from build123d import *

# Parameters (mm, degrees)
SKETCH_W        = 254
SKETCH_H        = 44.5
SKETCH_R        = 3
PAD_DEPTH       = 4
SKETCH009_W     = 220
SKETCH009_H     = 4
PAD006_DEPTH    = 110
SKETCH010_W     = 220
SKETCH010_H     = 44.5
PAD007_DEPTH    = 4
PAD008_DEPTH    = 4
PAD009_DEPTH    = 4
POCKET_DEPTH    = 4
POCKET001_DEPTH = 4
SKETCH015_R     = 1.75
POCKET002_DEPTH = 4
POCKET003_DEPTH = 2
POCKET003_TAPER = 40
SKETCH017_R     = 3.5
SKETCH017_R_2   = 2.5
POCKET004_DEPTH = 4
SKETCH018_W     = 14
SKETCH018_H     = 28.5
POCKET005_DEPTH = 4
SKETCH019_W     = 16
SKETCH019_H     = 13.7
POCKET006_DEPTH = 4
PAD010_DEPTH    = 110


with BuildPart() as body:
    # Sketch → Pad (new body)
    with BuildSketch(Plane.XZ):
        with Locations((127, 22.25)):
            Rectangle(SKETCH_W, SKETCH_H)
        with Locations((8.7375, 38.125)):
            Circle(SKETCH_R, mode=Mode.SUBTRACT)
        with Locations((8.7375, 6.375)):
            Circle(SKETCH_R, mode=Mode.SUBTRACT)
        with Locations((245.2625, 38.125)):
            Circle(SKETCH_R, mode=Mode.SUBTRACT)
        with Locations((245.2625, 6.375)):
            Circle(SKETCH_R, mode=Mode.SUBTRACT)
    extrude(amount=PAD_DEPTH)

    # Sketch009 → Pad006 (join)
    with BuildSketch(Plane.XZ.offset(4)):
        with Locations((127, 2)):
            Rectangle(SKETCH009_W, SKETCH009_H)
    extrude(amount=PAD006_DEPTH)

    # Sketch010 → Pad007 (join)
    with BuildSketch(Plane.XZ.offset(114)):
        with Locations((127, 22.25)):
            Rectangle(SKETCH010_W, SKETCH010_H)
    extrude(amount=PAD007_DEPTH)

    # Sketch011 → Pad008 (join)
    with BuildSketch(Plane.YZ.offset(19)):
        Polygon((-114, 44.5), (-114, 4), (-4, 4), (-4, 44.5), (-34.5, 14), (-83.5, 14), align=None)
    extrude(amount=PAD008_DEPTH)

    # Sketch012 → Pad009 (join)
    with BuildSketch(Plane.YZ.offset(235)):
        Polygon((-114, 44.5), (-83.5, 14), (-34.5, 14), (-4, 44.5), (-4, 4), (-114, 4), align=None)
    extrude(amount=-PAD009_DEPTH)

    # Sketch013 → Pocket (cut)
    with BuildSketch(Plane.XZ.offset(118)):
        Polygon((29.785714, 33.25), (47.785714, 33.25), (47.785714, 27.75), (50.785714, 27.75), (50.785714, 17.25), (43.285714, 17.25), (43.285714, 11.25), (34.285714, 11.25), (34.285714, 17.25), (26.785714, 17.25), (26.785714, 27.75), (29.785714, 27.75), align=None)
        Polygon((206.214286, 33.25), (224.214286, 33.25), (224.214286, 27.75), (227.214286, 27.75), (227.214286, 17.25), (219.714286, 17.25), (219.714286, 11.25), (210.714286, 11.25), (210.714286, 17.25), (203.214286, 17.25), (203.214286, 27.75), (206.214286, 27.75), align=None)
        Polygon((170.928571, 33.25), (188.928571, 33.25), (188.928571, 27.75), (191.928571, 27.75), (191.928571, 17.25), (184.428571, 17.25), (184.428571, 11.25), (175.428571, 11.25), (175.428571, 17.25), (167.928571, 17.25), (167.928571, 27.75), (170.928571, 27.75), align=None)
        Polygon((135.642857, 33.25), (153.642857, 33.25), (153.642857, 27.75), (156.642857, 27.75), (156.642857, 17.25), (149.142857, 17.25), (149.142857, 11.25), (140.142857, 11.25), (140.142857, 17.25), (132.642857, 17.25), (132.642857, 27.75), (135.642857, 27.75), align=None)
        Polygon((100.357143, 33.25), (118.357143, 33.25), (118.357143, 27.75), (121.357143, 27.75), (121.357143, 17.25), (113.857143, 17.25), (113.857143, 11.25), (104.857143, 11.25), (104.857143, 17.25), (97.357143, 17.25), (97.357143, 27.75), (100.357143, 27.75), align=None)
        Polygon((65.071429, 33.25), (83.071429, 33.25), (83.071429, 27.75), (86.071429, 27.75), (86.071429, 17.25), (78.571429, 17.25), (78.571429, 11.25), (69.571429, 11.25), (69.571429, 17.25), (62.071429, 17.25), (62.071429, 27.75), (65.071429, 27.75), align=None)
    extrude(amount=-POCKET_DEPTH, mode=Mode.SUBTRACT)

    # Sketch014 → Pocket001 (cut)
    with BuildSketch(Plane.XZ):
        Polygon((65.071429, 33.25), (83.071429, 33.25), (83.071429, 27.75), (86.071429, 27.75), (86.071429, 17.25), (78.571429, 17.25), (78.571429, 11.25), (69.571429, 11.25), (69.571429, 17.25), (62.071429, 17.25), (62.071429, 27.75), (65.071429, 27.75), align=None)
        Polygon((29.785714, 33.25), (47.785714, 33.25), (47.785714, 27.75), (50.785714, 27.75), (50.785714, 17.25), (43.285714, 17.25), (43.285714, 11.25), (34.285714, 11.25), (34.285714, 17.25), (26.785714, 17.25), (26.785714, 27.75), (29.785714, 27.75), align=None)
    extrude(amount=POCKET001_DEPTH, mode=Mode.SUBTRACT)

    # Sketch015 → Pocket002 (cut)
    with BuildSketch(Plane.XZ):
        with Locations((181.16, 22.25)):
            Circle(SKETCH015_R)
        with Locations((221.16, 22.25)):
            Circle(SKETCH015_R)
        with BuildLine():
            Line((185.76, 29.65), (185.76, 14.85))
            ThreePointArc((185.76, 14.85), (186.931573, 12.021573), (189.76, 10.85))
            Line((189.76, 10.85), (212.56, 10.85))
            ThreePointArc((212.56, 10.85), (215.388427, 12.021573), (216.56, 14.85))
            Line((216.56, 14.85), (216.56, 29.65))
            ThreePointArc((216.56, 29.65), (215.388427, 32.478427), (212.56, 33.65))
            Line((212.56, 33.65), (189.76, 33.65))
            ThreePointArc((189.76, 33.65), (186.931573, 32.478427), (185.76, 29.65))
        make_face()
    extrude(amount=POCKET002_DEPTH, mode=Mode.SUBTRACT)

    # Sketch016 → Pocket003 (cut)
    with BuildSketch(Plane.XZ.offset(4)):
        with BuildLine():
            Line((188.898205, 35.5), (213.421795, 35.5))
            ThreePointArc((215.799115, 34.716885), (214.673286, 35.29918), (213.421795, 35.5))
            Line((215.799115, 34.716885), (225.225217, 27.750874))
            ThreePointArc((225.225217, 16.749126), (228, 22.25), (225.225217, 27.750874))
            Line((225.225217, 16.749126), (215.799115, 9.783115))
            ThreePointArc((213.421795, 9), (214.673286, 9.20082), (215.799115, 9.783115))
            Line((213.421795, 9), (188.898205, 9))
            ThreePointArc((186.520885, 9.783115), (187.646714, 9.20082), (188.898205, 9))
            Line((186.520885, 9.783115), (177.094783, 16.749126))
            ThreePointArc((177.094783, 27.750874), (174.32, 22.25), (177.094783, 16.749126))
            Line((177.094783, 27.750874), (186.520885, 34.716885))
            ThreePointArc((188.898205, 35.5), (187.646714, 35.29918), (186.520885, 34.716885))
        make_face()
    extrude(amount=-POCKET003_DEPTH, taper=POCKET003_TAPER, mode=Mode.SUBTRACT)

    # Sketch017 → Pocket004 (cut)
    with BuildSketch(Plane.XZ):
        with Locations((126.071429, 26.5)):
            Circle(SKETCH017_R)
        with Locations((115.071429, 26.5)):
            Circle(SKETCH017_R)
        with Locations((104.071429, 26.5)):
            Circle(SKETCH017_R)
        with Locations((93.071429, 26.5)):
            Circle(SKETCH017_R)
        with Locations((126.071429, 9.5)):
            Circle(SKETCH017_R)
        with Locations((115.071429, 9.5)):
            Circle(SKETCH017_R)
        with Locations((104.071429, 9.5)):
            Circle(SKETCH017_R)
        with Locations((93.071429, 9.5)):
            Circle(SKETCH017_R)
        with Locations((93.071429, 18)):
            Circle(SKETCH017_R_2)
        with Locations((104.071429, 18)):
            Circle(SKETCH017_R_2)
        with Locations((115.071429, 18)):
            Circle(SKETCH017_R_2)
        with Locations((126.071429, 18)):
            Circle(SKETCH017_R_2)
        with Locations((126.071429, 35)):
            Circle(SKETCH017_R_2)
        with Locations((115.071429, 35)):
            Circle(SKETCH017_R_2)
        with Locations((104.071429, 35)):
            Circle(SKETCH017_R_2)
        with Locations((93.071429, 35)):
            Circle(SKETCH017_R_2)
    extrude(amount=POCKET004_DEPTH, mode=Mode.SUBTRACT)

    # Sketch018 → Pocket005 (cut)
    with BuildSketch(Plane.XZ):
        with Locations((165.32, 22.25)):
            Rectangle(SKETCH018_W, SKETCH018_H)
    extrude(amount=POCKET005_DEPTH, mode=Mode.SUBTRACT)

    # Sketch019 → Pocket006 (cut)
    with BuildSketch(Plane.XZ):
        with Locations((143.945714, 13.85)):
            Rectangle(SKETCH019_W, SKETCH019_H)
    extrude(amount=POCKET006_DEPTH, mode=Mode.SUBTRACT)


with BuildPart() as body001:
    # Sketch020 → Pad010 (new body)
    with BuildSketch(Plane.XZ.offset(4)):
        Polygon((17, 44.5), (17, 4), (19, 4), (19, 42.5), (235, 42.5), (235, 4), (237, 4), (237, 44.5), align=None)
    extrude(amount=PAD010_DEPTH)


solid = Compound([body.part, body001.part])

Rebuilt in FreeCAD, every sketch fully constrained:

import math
import FreeCAD as App
import Part
import Sketcher

V = App.Vector


def add_polygon(sketch, points):
    """Adds a closed chain of lines whose ends are joined by coincident constraints."""
    first, n = sketch.GeometryCount, len(points)
    for a, b in zip(points, points[1:] + points[:1]):
        sketch.addGeometry(Part.LineSegment(App.Vector(*a, 0), App.Vector(*b, 0)), False)
    for i in range(n):
        sketch.addConstraint(Sketcher.Constraint("Coincident", first + i, 2, first + (i + 1) % n, 1))

doc = App.newDocument("Part")
params = doc.addObject("Spreadsheet::Sheet", "Params")
for row, (alias, value) in enumerate([
    ("sketch1_diameter", "6 mm"),
    ("sketch1_width", "254 mm"),
    ("sketch1_height", "44.5 mm"),
    ("pad1_length", "4 mm"),
    ("sketch2_width", "220 mm"),
    ("sketch2_height", "4 mm"),
    ("pad2_length", "110 mm"),
    ("sketch3_width", "220 mm"),
    ("sketch3_height", "44.5 mm"),
    ("pad3_length", "4 mm"),
    ("sketch4_width", "110 mm"),
    ("sketch4_width2", "49 mm"),
    ("sketch4_height", "40.5 mm"),
    ("pad4_length", "4 mm"),
    ("sketch5_width", "110 mm"),
    ("sketch5_width2", "49 mm"),
    ("sketch5_height", "40.5 mm"),
    ("pad5_length", "4 mm"),
    ("sketch6_width", "18 mm"),
    ("sketch6_width2", "3 mm"),
    ("sketch6_width3", "9 mm"),
    ("sketch6_height", "6 mm"),
    ("sketch6_height2", "5.5 mm"),
    ("pocket1_length", "4 mm"),
    ("sketch7_width", "18 mm"),
    ("sketch7_width2", "3 mm"),
    ("sketch7_width3", "9 mm"),
    ("sketch7_height", "6 mm"),
    ("sketch7_height2", "5.5 mm"),
    ("pocket2_length", "4 mm"),
    ("sketch8_radius", "4 mm"),
    ("sketch8_diameter", "3.5 mm"),
    ("sketch8_width", "22.8 mm"),
    ("sketch8_height", "14.8 mm"),
    ("pocket3_length", "4 mm"),
    ("sketch9_radius", "6.840001 mm"),
    ("pocket4_length", "2 mm"),
    ("pocket4_taper", "-40 deg"),
    ("sketch10_diameter", "7 mm"),
    ("sketch10_diameter2", "5 mm"),
    ("pocket5_length", "4 mm"),
    ("sketch11_width", "14 mm"),
    ("sketch11_height", "28.5 mm"),
    ("pocket6_length", "4 mm"),
    ("sketch12_width", "16 mm"),
    ("sketch12_height", "13.7 mm"),
    ("pocket7_length", "4 mm"),
    ("sketch13_width", "2 mm"),
    ("sketch13_width2", "216 mm"),
    ("sketch13_height", "40.5 mm"),
    ("sketch13_height2", "38.5 mm"),
    ("pad6_length", "110 mm"),
], start=1):
    params.set(f"A{row}", alias)
    params.set(f"B{row}", "=" + value)
    params.setAlias(f"B{row}", alias)

body = doc.addObject("PartDesign::Body", "Body")

# Sketch on XZ plane
sketch1 = body.newObject("Sketcher::SketchObject", "Sketch")
sketch1.AttachmentSupport = (doc.getObject("XZ_Plane"), [""])
sketch1.MapMode = "FlatFace"
add_polygon(sketch1, [(0, 44.5), (0, 0), (254, 0), (254, 44.5)])  # lines 0-3
sketch1.addGeometry(Part.Circle(V(8.7, 6.4, 0), V(0, 0, 1), 3), False)  # 4
sketch1.addGeometry(Part.Circle(V(245.3, 6.4, 0), V(0, 0, 1), 3), False)  # 5
sketch1.addGeometry(Part.Circle(V(8.7, 38.1, 0), V(0, 0, 1), 3), False)  # 6
sketch1.addGeometry(Part.Circle(V(245.3, 38.1, 0), V(0, 0, 1), 3), False)  # 7
sketch1.addConstraint([
    Sketcher.Constraint("Vertical", 0),
    Sketcher.Constraint("Horizontal", 1),
    Sketcher.Constraint("Vertical", 2),
    Sketcher.Constraint("Horizontal", 3),
    Sketcher.Constraint("Coincident", 0, 2, -1, 1),
    Sketcher.Constraint("Equal", 4, 5),
    Sketcher.Constraint("Equal", 5, 6),
    Sketcher.Constraint("Equal", 6, 7),
    Sketcher.Constraint("Horizontal", 4, 3, 5, 3),
    Sketcher.Constraint("Horizontal", 6, 3, 7, 3),
    Sketcher.Constraint("Vertical", 4, 3, 6, 3),
    Sketcher.Constraint("Vertical", 5, 3, 7, 3),
    Sketcher.Constraint("Diameter", 4, 6.0),
    Sketcher.Constraint("DistanceX", 1, 1, 1, 2, 254.0),
    Sketcher.Constraint("DistanceY", 0, 2, 0, 1, 44.5),
    Sketcher.Constraint("DistanceY", 4, 3, 6, 3, 31.75),
    Sketcher.Constraint("DistanceY", -1, 1, 4, 3, 6.375),
    Sketcher.Constraint("DistanceX", 4, 3, 5, 3, 236.525),
    Sketcher.Constraint("DistanceX", -1, 1, 4, 3, 8.7375),
])
sketch1.setExpression("Constraints[16]", "Params.sketch1_diameter")
sketch1.setExpression("Constraints[17]", "Params.sketch1_width")
sketch1.setExpression("Constraints[18]", "Params.sketch1_height")
pad1 = body.newObject("PartDesign::Pad", "Pad")
pad1.Profile = sketch1
pad1.setExpression("Length", "Params.pad1_length")

# Sketch on XZ plane
sketch2 = body.newObject("Sketcher::SketchObject", "Sketch001")
sketch2.AttachmentSupport = (doc.getObject("XZ_Plane"), [""])
sketch2.MapMode = "FlatFace"
sketch2.AttachmentOffset = App.Placement(V(0, 0, 4), App.Rotation())
add_polygon(sketch2, [(17, 4), (17, 0), (237, 0), (237, 4)])  # lines 0-3
sketch2.addConstraint([
    Sketcher.Constraint("Vertical", 0),
    Sketcher.Constraint("Horizontal", 1),
    Sketcher.Constraint("Vertical", 2),
    Sketcher.Constraint("Horizontal", 3),
    Sketcher.Constraint("PointOnObject", 0, 2, -1),
    Sketcher.Constraint("DistanceX", 1, 1, 1, 2, 220.0),
    Sketcher.Constraint("DistanceY", 0, 2, 0, 1, 4.0),
    Sketcher.Constraint("DistanceX", -1, 1, 0, 2, 17.0),
])
sketch2.setExpression("Constraints[9]", "Params.sketch2_width")
sketch2.setExpression("Constraints[10]", "Params.sketch2_height")
pad2 = body.newObject("PartDesign::Pad", "Pad001")
pad2.Profile = sketch2
pad2.setExpression("Length", "Params.pad2_length")

# Sketch on XZ plane
sketch3 = body.newObject("Sketcher::SketchObject", "Sketch002")
sketch3.AttachmentSupport = (doc.getObject("XZ_Plane"), [""])
sketch3.MapMode = "FlatFace"
sketch3.AttachmentOffset = App.Placement(V(0, 0, 114), App.Rotation())
add_polygon(sketch3, [(17, 44), (17, 0), (237, 0), (237, 44)])  # lines 0-3
sketch3.addConstraint([
    Sketcher.Constraint("Vertical", 0),
    Sketcher.Constraint("Horizontal", 1),
    Sketcher.Constraint("Vertical", 2),
    Sketcher.Constraint("Horizontal", 3),
    Sketcher.Constraint("PointOnObject", 0, 2, -1),
    Sketcher.Constraint("DistanceX", 1, 1, 1, 2, 220.0),
    Sketcher.Constraint("DistanceY", 0, 2, 0, 1, 44.5),
    Sketcher.Constraint("DistanceX", -1, 1, 0, 2, 17.0),
])
sketch3.setExpression("Constraints[9]", "Params.sketch3_width")
sketch3.setExpression("Constraints[10]", "Params.sketch3_height")
pad3 = body.newObject("PartDesign::Pad", "Pad002")
pad3.Profile = sketch3
pad3.setExpression("Length", "Params.pad3_length")

# Sketch on YZ plane
sketch4 = body.newObject("Sketcher::SketchObject", "Sketch003")
sketch4.AttachmentSupport = (doc.getObject("YZ_Plane"), [""])
sketch4.MapMode = "FlatFace"
sketch4.AttachmentOffset = App.Placement(V(0, 0, 19), App.Rotation())
add_polygon(sketch4, [(-114, 44), (-114, 4), (-4, 4), (-4, 44), (-34, 14), (-84, 14)])  # lines 0-5
sketch4.addConstraint([
    Sketcher.Constraint("Vertical", 0),
    Sketcher.Constraint("Horizontal", 1),
    Sketcher.Constraint("Vertical", 2),
    Sketcher.Constraint("Horizontal", 4),
    Sketcher.Constraint("Perpendicular", 3, 5),
    Sketcher.Constraint("Horizontal", 2, 2, 5, 2),
    Sketcher.Constraint("Equal", 3, 5),
    Sketcher.Constraint("DistanceX", 1, 1, 1, 2, 110.0),
    Sketcher.Constraint("DistanceX", 4, 2, 4, 1, 49.0),
    Sketcher.Constraint("DistanceY", 0, 2, 0, 1, 40.5),
    Sketcher.Constraint("DistanceX", 0, 2, -1, 1, 114.0),
    Sketcher.Constraint("DistanceY", -1, 1, 0, 2, 4.0),
])
sketch4.setExpression("Constraints[13]", "Params.sketch4_width")
sketch4.setExpression("Constraints[14]", "Params.sketch4_width2")
sketch4.setExpression("Constraints[15]", "Params.sketch4_height")
pad4 = body.newObject("PartDesign::Pad", "Pad003")
pad4.Profile = sketch4
pad4.setExpression("Length", "Params.pad4_length")

# Sketch on YZ plane
sketch5 = body.newObject("Sketcher::SketchObject", "Sketch004")
sketch5.AttachmentSupport = (doc.getObject("YZ_Plane"), [""])
sketch5.MapMode = "FlatFace"
sketch5.AttachmentOffset = App.Placement(V(0, 0, 235), App.Rotation())
add_polygon(sketch5, [(-84, 14), (-114, 44), (-114, 4), (-4, 4), (-4, 44), (-34, 14)])  # lines 0-5
sketch5.addConstraint([
    Sketcher.Constraint("Vertical", 1),
    Sketcher.Constraint("Horizontal", 2),
    Sketcher.Constraint("Vertical", 3),
    Sketcher.Constraint("Horizontal", 5),
    Sketcher.Constraint("Perpendicular", 0, 4),
    Sketcher.Constraint("Horizontal", 0, 2, 3, 2),
    Sketcher.Constraint("Equal", 0, 4),
    Sketcher.Constraint("DistanceX", 2, 1, 2, 2, 110.0),
    Sketcher.Constraint("DistanceX", 5, 2, 5, 1, 49.0),
    Sketcher.Constraint("DistanceY", 1, 2, 1, 1, 40.5),
    Sketcher.Constraint("DistanceX", 0, 2, -1, 1, 114.0),
    Sketcher.Constraint("DistanceY", -1, 1, 1, 2, 4.0),
])
sketch5.setExpression("Constraints[13]", "Params.sketch5_width")
sketch5.setExpression("Constraints[14]", "Params.sketch5_width2")
sketch5.setExpression("Constraints[15]", "Params.sketch5_height")
pad5 = body.newObject("PartDesign::Pad", "Pad004")
pad5.Profile = sketch5
pad5.setExpression("Length", "Params.pad5_length")
pad5.Reversed = True

# Sketch on XZ plane
sketch6 = body.newObject("Sketcher::SketchObject", "Sketch005")
sketch6.AttachmentSupport = (doc.getObject("XZ_Plane"), [""])
sketch6.MapMode = "FlatFace"
sketch6.AttachmentOffset = App.Placement(V(0, 0, 118), App.Rotation())
add_polygon(sketch6, [(47.8, 33.2), (29.8, 33.2), (29.8, 27.8), (26.8, 27.8), (26.8, 17.2), (34.3, 17.2), (34.3, 11.2), (43.3, 11.2), (43.3, 17.2), (50.8, 17.2), (50.8, 27.8), (47.8, 27.8)])  # lines 0-11
add_polygon(sketch6, [(224.2, 33.2), (206.2, 33.2), (206.2, 27.8), (203.2, 27.8), (203.2, 17.2), (210.7, 17.2), (210.7, 11.2), (219.7, 11.2), (219.7, 17.2), (227.2, 17.2), (227.2, 27.8), (224.2, 27.8)])  # lines 12-23
add_polygon(sketch6, [(188.9, 33.2), (170.9, 33.2), (170.9, 27.8), (167.9, 27.8), (167.9, 17.2), (175.4, 17.2), (175.4, 11.2), (184.4, 11.2), (184.4, 17.2), (191.9, 17.2), (191.9, 27.8), (188.9, 27.8)])  # lines 24-35
add_polygon(sketch6, [(153.6, 33.2), (135.6, 33.2), (135.6, 27.8), (132.6, 27.8), (132.6, 17.2), (140.1, 17.2), (140.1, 11.2), (149.1, 11.2), (149.1, 17.2), (156.6, 17.2), (156.6, 27.8), (153.6, 27.8)])  # lines 36-47
add_polygon(sketch6, [(118.4, 33.2), (100.4, 33.2), (100.4, 27.8), (97.4, 27.8), (97.4, 17.2), (104.9, 17.2), (104.9, 11.2), (113.9, 11.2), (113.9, 17.2), (121.4, 17.2), (121.4, 27.8), (118.4, 27.8)])  # lines 48-59
add_polygon(sketch6, [(83.1, 33.2), (65.1, 33.2), (65.1, 27.8), (62.1, 27.8), (62.1, 17.2), (69.6, 17.2), (69.6, 11.2), (78.6, 11.2), (78.6, 17.2), (86.1, 17.2), (86.1, 27.8), (83.1, 27.8)])  # lines 60-71
sketch6.addConstraint([
    Sketcher.Constraint("Horizontal", 0),
    Sketcher.Constraint("Vertical", 1),
    Sketcher.Constraint("Horizontal", 2),
    Sketcher.Constraint("Vertical", 3),
    Sketcher.Constraint("Horizontal", 4),
    Sketcher.Constraint("Vertical", 5),
    Sketcher.Constraint("Horizontal", 6),
    Sketcher.Constraint("Vertical", 7),
    Sketcher.Constraint("Horizontal", 8),
    Sketcher.Constraint("Vertical", 9),
    Sketcher.Constraint("Horizontal", 10),
    Sketcher.Constraint("Vertical", 11),
    Sketcher.Constraint("Horizontal", 12),
    Sketcher.Constraint("Vertical", 13),
    Sketcher.Constraint("Horizontal", 14),
    Sketcher.Constraint("Vertical", 15),
    Sketcher.Constraint("Horizontal", 16),
    Sketcher.Constraint("Vertical", 17),
    Sketcher.Constraint("Horizontal", 18),
    Sketcher.Constraint("Vertical", 19),
    Sketcher.Constraint("Horizontal", 20),
    Sketcher.Constraint("Vertical", 21),
    Sketcher.Constraint("Horizontal", 22),
    Sketcher.Constraint("Vertical", 23),
    Sketcher.Constraint("Horizontal", 24),
    Sketcher.Constraint("Vertical", 25),
    Sketcher.Constraint("Horizontal", 26),
    Sketcher.Constraint("Vertical", 27),
    Sketcher.Constraint("Horizontal", 28),
    Sketcher.Constraint("Vertical", 29),
    Sketcher.Constraint("Horizontal", 30),
    Sketcher.Constraint("Vertical", 31),
    Sketcher.Constraint("Horizontal", 32),
    Sketcher.Constraint("Vertical", 33),
    Sketcher.Constraint("Horizontal", 34),
    Sketcher.Constraint("Vertical", 35),
    Sketcher.Constraint("Horizontal", 36),
    Sketcher.Constraint("Vertical", 37),
    Sketcher.Constraint("Horizontal", 38),
    Sketcher.Constraint("Vertical", 39),
    Sketcher.Constraint("Horizontal", 40),
    Sketcher.Constraint("Vertical", 41),
    Sketcher.Constraint("Horizontal", 42),
    Sketcher.Constraint("Vertical", 43),
    Sketcher.Constraint("Horizontal", 44),
    Sketcher.Constraint("Vertical", 45),
    Sketcher.Constraint("Horizontal", 46),
    Sketcher.Constraint("Vertical", 47),
    Sketcher.Constraint("Horizontal", 48),
    Sketcher.Constraint("Vertical", 49),
    Sketcher.Constraint("Horizontal", 50),
    Sketcher.Constraint("Vertical", 51),
    Sketcher.Constraint("Horizontal", 52),
    Sketcher.Constraint("Vertical", 53),
    Sketcher.Constraint("Horizontal", 54),
    Sketcher.Constraint("Vertical", 55),
    Sketcher.Constraint("Horizontal", 56),
    Sketcher.Constraint("Vertical", 57),
    Sketcher.Constraint("Horizontal", 58),
    Sketcher.Constraint("Vertical", 59),
    Sketcher.Constraint("Horizontal", 60),
    Sketcher.Constraint("Vertical", 61),
    Sketcher.Constraint("Horizontal", 62),
    Sketcher.Constraint("Vertical", 63),
    Sketcher.Constraint("Horizontal", 64),
    Sketcher.Constraint("Vertical", 65),
    Sketcher.Constraint("Horizontal", 66),
    Sketcher.Constraint("Vertical", 67),
    Sketcher.Constraint("Horizontal", 68),
    Sketcher.Constraint("Vertical", 69),
    Sketcher.Constraint("Horizontal", 70),
    Sketcher.Constraint("Vertical", 71),
    Sketcher.Constraint("Horizontal", 4, 2, 7, 2),
    Sketcher.Constraint("Horizontal", 2, 2, 9, 2),
    Sketcher.Constraint("Horizontal", 11, 2, 12, 2),
    Sketcher.Constraint("Horizontal", 10, 2, 13, 2),
    Sketcher.Constraint("Horizontal", 8, 2, 15, 2),
    Sketcher.Constraint("Horizontal", 6, 2, 17, 2),
    Sketcher.Constraint("Horizontal", 16, 2, 19, 2),
    Sketcher.Constraint("Horizontal", 14, 2, 21, 2),
    Sketcher.Constraint("Horizontal", 23, 2, 24, 2),
    Sketcher.Constraint("Horizontal", 22, 2, 25, 2),
    Sketcher.Constraint("Horizontal", 20, 2, 27, 2),
    Sketcher.Constraint("Horizontal", 18, 2, 29, 2),
    Sketcher.Constraint("Horizontal", 28, 2, 31, 2),
    Sketcher.Constraint("Horizontal", 26, 2, 33, 2),
    Sketcher.Constraint("Horizontal", 35, 2, 36, 2),
    Sketcher.Constraint("Horizontal", 34, 2, 37, 2),
    Sketcher.Constraint("Horizontal", 32, 2, 39, 2),
    Sketcher.Constraint("Horizontal", 30, 2, 41, 2),
    Sketcher.Constraint("Horizontal", 40, 2, 43, 2),
    Sketcher.Constraint("Horizontal", 38, 2, 45, 2),
    Sketcher.Constraint("Horizontal", 47, 2, 48, 2),
    Sketcher.Constraint("Horizontal", 46, 2, 49, 2),
    Sketcher.Constraint("Horizontal", 44, 2, 51, 2),
    Sketcher.Constraint("Horizontal", 42, 2, 53, 2),
    Sketcher.Constraint("Horizontal", 52, 2, 55, 2),
    Sketcher.Constraint("Horizontal", 50, 2, 57, 2),
    Sketcher.Constraint("Horizontal", 59, 2, 60, 2),
    Sketcher.Constraint("Horizontal", 58, 2, 61, 2),
    Sketcher.Constraint("Horizontal", 56, 2, 63, 2),
    Sketcher.Constraint("Horizontal", 54, 2, 65, 2),
    Sketcher.Constraint("Horizontal", 64, 2, 67, 2),
    Sketcher.Constraint("Horizontal", 62, 2, 69, 2),
    Sketcher.Constraint("Equal", 4, 8),
    Sketcher.Constraint("Equal", 2, 10),
    Sketcher.Constraint("Equal", 0, 12),
    Sketcher.Constraint("Equal", 10, 14),
    Sketcher.Constraint("Equal", 8, 16),
    Sketcher.Constraint("Equal", 6, 18),
    Sketcher.Constraint("Equal", 16, 20),
    Sketcher.Constraint("Equal", 12, 24),
    Sketcher.Constraint("Equal", 22, 26),
    Sketcher.Constraint("Equal", 20, 28),
    Sketcher.Constraint("Equal", 18, 30),
    Sketcher.Constraint("Equal", 28, 32),
    Sketcher.Constraint("Equal", 24, 36),
    Sketcher.Constraint("Equal", 34, 38),
    Sketcher.Constraint("Equal", 32, 40),
    Sketcher.Constraint("Equal", 30, 42),
    Sketcher.Constraint("Equal", 40, 44),
    Sketcher.Constraint("Equal", 36, 48),
    Sketcher.Constraint("Equal", 46, 50),
    Sketcher.Constraint("Equal", 44, 52),
    Sketcher.Constraint("Equal", 42, 54),
    Sketcher.Constraint("Equal", 52, 56),
    Sketcher.Constraint("Equal", 48, 60),
    Sketcher.Constraint("Equal", 58, 62),
    Sketcher.Constraint("Equal", 56, 64),
    Sketcher.Constraint("Equal", 54, 66),
    Sketcher.Constraint("Equal", 64, 68),
    Sketcher.Constraint("DistanceX", 0, 2, 0, 1, 18.0),
    Sketcher.Constraint("DistanceX", 2, 2, 2, 1, 3.0),
    Sketcher.Constraint("DistanceX", 6, 1, 6, 2, 9.0),
    Sketcher.Constraint("DistanceY", 5, 2, 5, 1, 6.0),
    Sketcher.Constraint("DistanceY", 1, 2, 1, 1, 5.5),
    Sketcher.Constraint("DistanceY", 3, 2, 3, 1, 10.5),
    Sketcher.Constraint("DistanceY", -1, 1, 0, 2, 33.25),
    Sketcher.Constraint("DistanceX", -1, 1, 24, 2, 170.928571),
    Sketcher.Constraint("DistanceX", -1, 1, 60, 2, 65.071429),
    Sketcher.Constraint("DistanceX", -1, 1, 0, 2, 29.785714),
    Sketcher.Constraint("DistanceX", -1, 1, 12, 2, 206.214286),
    Sketcher.Constraint("DistanceX", -1, 1, 36, 2, 135.642857),
    Sketcher.Constraint("DistanceX", -1, 1, 48, 2, 100.357143),
])
sketch6.setExpression("Constraints[203]", "Params.sketch6_width")
sketch6.setExpression("Constraints[204]", "Params.sketch6_width2")
sketch6.setExpression("Constraints[205]", "Params.sketch6_width3")
sketch6.setExpression("Constraints[206]", "Params.sketch6_height")
sketch6.setExpression("Constraints[207]", "Params.sketch6_height2")
pocket1 = body.newObject("PartDesign::Pocket", "Pocket")
pocket1.Profile = sketch6
pocket1.setExpression("Length", "Params.pocket1_length")

# Sketch on XZ plane
sketch7 = body.newObject("Sketcher::SketchObject", "Sketch006")
sketch7.AttachmentSupport = (doc.getObject("XZ_Plane"), [""])
sketch7.MapMode = "FlatFace"
add_polygon(sketch7, [(83.1, 33.2), (65.1, 33.2), (65.1, 27.8), (62.1, 27.8), (62.1, 17.2), (69.6, 17.2), (69.6, 11.2), (78.6, 11.2), (78.6, 17.2), (86.1, 17.2), (86.1, 27.8), (83.1, 27.8)])  # lines 0-11
add_polygon(sketch7, [(47.8, 33.2), (29.8, 33.2), (29.8, 27.8), (26.8, 27.8), (26.8, 17.2), (34.3, 17.2), (34.3, 11.2), (43.3, 11.2), (43.3, 17.2), (50.8, 17.2), (50.8, 27.8), (47.8, 27.8)])  # lines 12-23
sketch7.addConstraint([
    Sketcher.Constraint("Horizontal", 0),
    Sketcher.Constraint("Vertical", 1),
    Sketcher.Constraint("Horizontal", 2),
    Sketcher.Constraint("Vertical", 3),
    Sketcher.Constraint("Horizontal", 4),
    Sketcher.Constraint("Vertical", 5),
    Sketcher.Constraint("Horizontal", 6),
    Sketcher.Constraint("Vertical", 7),
    Sketcher.Constraint("Horizontal", 8),
    Sketcher.Constraint("Vertical", 9),
    Sketcher.Constraint("Horizontal", 10),
    Sketcher.Constraint("Vertical", 11),
    Sketcher.Constraint("Horizontal", 12),
    Sketcher.Constraint("Vertical", 13),
    Sketcher.Constraint("Horizontal", 14),
    Sketcher.Constraint("Vertical", 15),
    Sketcher.Constraint("Horizontal", 16),
    Sketcher.Constraint("Vertical", 17),
    Sketcher.Constraint("Horizontal", 18),
    Sketcher.Constraint("Vertical", 19),
    Sketcher.Constraint("Horizontal", 20),
    Sketcher.Constraint("Vertical", 21),
    Sketcher.Constraint("Horizontal", 22),
    Sketcher.Constraint("Vertical", 23),
    Sketcher.Constraint("Horizontal", 4, 2, 7, 2),
    Sketcher.Constraint("Horizontal", 2, 2, 9, 2),
    Sketcher.Constraint("Horizontal", 11, 2, 12, 2),
    Sketcher.Constraint("Horizontal", 10, 2, 13, 2),
    Sketcher.Constraint("Horizontal", 8, 2, 15, 2),
    Sketcher.Constraint("Horizontal", 6, 2, 17, 2),
    Sketcher.Constraint("Horizontal", 16, 2, 19, 2),
    Sketcher.Constraint("Horizontal", 14, 2, 21, 2),
    Sketcher.Constraint("Equal", 4, 8),
    Sketcher.Constraint("Equal", 2, 10),
    Sketcher.Constraint("Equal", 0, 12),
    Sketcher.Constraint("Equal", 10, 14),
    Sketcher.Constraint("Equal", 8, 16),
    Sketcher.Constraint("Equal", 6, 18),
    Sketcher.Constraint("Equal", 16, 20),
    Sketcher.Constraint("DistanceX", 0, 2, 0, 1, 18.0),
    Sketcher.Constraint("DistanceX", 2, 2, 2, 1, 3.0),
    Sketcher.Constraint("DistanceX", 6, 1, 6, 2, 9.0),
    Sketcher.Constraint("DistanceY", 5, 2, 5, 1, 6.0),
    Sketcher.Constraint("DistanceY", 1, 2, 1, 1, 5.5),
    Sketcher.Constraint("DistanceY", 3, 2, 3, 1, 10.5),
    Sketcher.Constraint("DistanceY", -1, 1, 0, 2, 33.25),
    Sketcher.Constraint("DistanceX", -1, 1, 0, 2, 65.071429),
    Sketcher.Constraint("DistanceX", -1, 1, 12, 2, 29.785714),
])
sketch7.setExpression("Constraints[63]", "Params.sketch7_width")
sketch7.setExpression("Constraints[64]", "Params.sketch7_width2")
sketch7.setExpression("Constraints[65]", "Params.sketch7_width3")
sketch7.setExpression("Constraints[66]", "Params.sketch7_height")
sketch7.setExpression("Constraints[67]", "Params.sketch7_height2")
pocket2 = body.newObject("PartDesign::Pocket", "Pocket001")
pocket2.Profile = sketch7
pocket2.setExpression("Length", "Params.pocket2_length")
pocket2.Reversed = True

# Sketch on XZ plane
sketch8 = body.newObject("Sketcher::SketchObject", "Sketch007")
sketch8.AttachmentSupport = (doc.getObject("XZ_Plane"), [""])
sketch8.MapMode = "FlatFace"
sketch8.addGeometry([
    Part.Circle(V(181.2, 22.2, 0), V(0, 0, 1), 1.8),  # 0
    Part.Circle(V(221.2, 22.2, 0), V(0, 0, 1), 1.8),  # 1
    Part.LineSegment(V(185.8, 29.6, 0), V(185.8, 14.8, 0)),  # 2
    Part.ArcOfCircle(Part.Circle(V(189.8, 14.9, 0), V(0, 0, 1), 4), math.radians(-180), math.radians(-90)),  # 3
    Part.LineSegment(V(189.8, 10.8, 0), V(212.6, 10.8, 0)),  # 4
    Part.ArcOfCircle(Part.Circle(V(212.6, 14.9, 0), V(0, 0, 1), 4), math.radians(-90), math.radians(0)),  # 5
    Part.LineSegment(V(216.6, 14.8, 0), V(216.6, 29.6, 0)),  # 6
    Part.ArcOfCircle(Part.Circle(V(212.6, 29.6, 0), V(0, 0, 1), 4), math.radians(0), math.radians(90)),  # 7
    Part.LineSegment(V(212.6, 33.6, 0), V(189.8, 33.6, 0)),  # 8
    Part.ArcOfCircle(Part.Circle(V(189.8, 29.6, 0), V(0, 0, 1), 4), math.radians(90), math.radians(180)),  # 9
], False)
sketch8.addConstraint([
    Sketcher.Constraint("Tangent", 2, 2, 3, 1),
    Sketcher.Constraint("Tangent", 3, 2, 4, 1),
    Sketcher.Constraint("Tangent", 4, 2, 5, 1),
    Sketcher.Constraint("Tangent", 5, 2, 6, 1),
    Sketcher.Constraint("Tangent", 6, 2, 7, 1),
    Sketcher.Constraint("Tangent", 7, 2, 8, 1),
    Sketcher.Constraint("Tangent", 8, 2, 9, 1),
    Sketcher.Constraint("Tangent", 9, 2, 2, 1),
    Sketcher.Constraint("Vertical", 2),
    Sketcher.Constraint("Horizontal", 4),
    Sketcher.Constraint("Vertical", 6),
    Sketcher.Constraint("Horizontal", 8),
    Sketcher.Constraint("Equal", 0, 1),
    Sketcher.Constraint("Equal", 3, 5),
    Sketcher.Constraint("Equal", 5, 7),
    Sketcher.Constraint("Equal", 7, 9),
    Sketcher.Constraint("Horizontal", 0, 3, 1, 3),
    Sketcher.Constraint("Radius", 3, 4.0),
    Sketcher.Constraint("Diameter", 0, 3.5),
    Sketcher.Constraint("DistanceX", 4, 1, 4, 2, 22.8),
    Sketcher.Constraint("DistanceY", 2, 2, 2, 1, 14.8),
    Sketcher.Constraint("DistanceX", 0, 3, 1, 3, 40.0),
    Sketcher.Constraint("DistanceX", 0, 3, 3, 3, 8.6),
    Sketcher.Constraint("DistanceY", 3, 3, 0, 3, 7.4),
    Sketcher.Constraint("DistanceX", -1, 1, 0, 3, 181.16),
    Sketcher.Constraint("DistanceY", -1, 1, 0, 3, 22.25),
])
sketch8.setExpression("Constraints[17]", "Params.sketch8_radius")
sketch8.setExpression("Constraints[18]", "Params.sketch8_diameter")
sketch8.setExpression("Constraints[19]", "Params.sketch8_width")
sketch8.setExpression("Constraints[20]", "Params.sketch8_height")
pocket3 = body.newObject("PartDesign::Pocket", "Pocket002")
pocket3.Profile = sketch8
pocket3.setExpression("Length", "Params.pocket3_length")
pocket3.Reversed = True

# Sketch on XZ plane
sketch9 = body.newObject("Sketcher::SketchObject", "Sketch008")
sketch9.AttachmentSupport = (doc.getObject("XZ_Plane"), [""])
sketch9.MapMode = "FlatFace"
sketch9.AttachmentOffset = App.Placement(V(0, 0, 4), App.Rotation())
sketch9.addGeometry([
    Part.LineSegment(V(213.4, 35.5, 0), V(188.9, 35.5, 0)),  # 0
    Part.ArcOfCircle(Part.Circle(V(188.9, 31.5, 0), V(0, 0, 1), 4), math.radians(90), math.radians(126)),  # 1
    Part.LineSegment(V(186.5, 34.7, 0), V(177.1, 27.8, 0)),  # 2
    Part.ArcOfCircle(Part.Circle(V(181.2, 22.2, 0), V(0, 0, 1), 6.8), math.radians(126), math.radians(234)),  # 3
    Part.LineSegment(V(177.1, 16.7, 0), V(186.5, 9.8, 0)),  # 4
    Part.ArcOfCircle(Part.Circle(V(188.9, 13, 0), V(0, 0, 1), 4), math.radians(-126), math.radians(-90)),  # 5
    Part.LineSegment(V(188.9, 9, 0), V(213.4, 9, 0)),  # 6
    Part.ArcOfCircle(Part.Circle(V(213.4, 13, 0), V(0, 0, 1), 4), math.radians(-90), math.radians(-54)),  # 7
    Part.LineSegment(V(215.8, 9.8, 0), V(225.2, 16.7, 0)),  # 8
    Part.ArcOfCircle(Part.Circle(V(221.2, 22.2, 0), V(0, 0, 1), 6.8), math.radians(-54), math.radians(54)),  # 9
    Part.LineSegment(V(225.2, 27.8, 0), V(215.8, 34.7, 0)),  # 10
    Part.ArcOfCircle(Part.Circle(V(213.4, 31.5, 0), V(0, 0, 1), 4), math.radians(54), math.radians(90)),  # 11
], False)
sketch9.addConstraint([
    Sketcher.Constraint("Tangent", 0, 2, 1, 1),
    Sketcher.Constraint("Tangent", 1, 2, 2, 1),
    Sketcher.Constraint("Tangent", 2, 2, 3, 1),
    Sketcher.Constraint("Tangent", 3, 2, 4, 1),
    Sketcher.Constraint("Tangent", 4, 2, 5, 1),
    Sketcher.Constraint("Tangent", 5, 2, 6, 1),
    Sketcher.Constraint("Tangent", 6, 2, 7, 1),
    Sketcher.Constraint("Tangent", 7, 2, 8, 1),
    Sketcher.Constraint("Tangent", 8, 2, 9, 1),
    Sketcher.Constraint("Tangent", 9, 2, 10, 1),
    Sketcher.Constraint("Tangent", 10, 2, 11, 1),
    Sketcher.Constraint("Tangent", 11, 2, 0, 1),
    Sketcher.Constraint("Horizontal", 0),
    Sketcher.Constraint("Horizontal", 6),
    Sketcher.Constraint("Equal", 1, 5),
    Sketcher.Constraint("Equal", 5, 7),
    Sketcher.Constraint("Equal", 3, 9),
    Sketcher.Constraint("Equal", 7, 11),
    Sketcher.Constraint("Parallel", 2, 8),
    Sketcher.Constraint("Parallel", 4, 10),
    Sketcher.Constraint("Horizontal", 3, 3, 9, 3),
    Sketcher.Constraint("Horizontal", 4, 2, 7, 2),
    Sketcher.Constraint("Vertical", 1, 3, 5, 3),
    Sketcher.Constraint("Radius", 3, 6.840001),
    Sketcher.Constraint("DistanceY", -1, 1, 5, 2, 9.0),
    Sketcher.Constraint("DistanceX", 3, 3, 9, 3, 39.999999),
    Sketcher.Constraint("DistanceY", -1, 1, 0, 2, 35.5),
    Sketcher.Constraint("DistanceX", -1, 1, 3, 3, 181.160001),
    Sketcher.Constraint("Radius", 1, 4.000003),
    Sketcher.Constraint("DistanceX", 0, 2, 0, 1, 24.52359),
])
sketch9.setExpression("Constraints[23]", "Params.sketch9_radius")
pocket4 = body.newObject("PartDesign::Pocket", "Pocket003")
pocket4.Profile = sketch9
pocket4.setExpression("Length", "Params.pocket4_length")
pocket4.setExpression("TaperAngle", "Params.pocket4_taper")

# Sketch on XZ plane
sketch10 = body.newObject("Sketcher::SketchObject", "Sketch009")
sketch10.AttachmentSupport = (doc.getObject("XZ_Plane"), [""])
sketch10.MapMode = "FlatFace"
sketch10.addGeometry([
    Part.Circle(V(126.1, 26.5, 0), V(0, 0, 1), 3.5),  # 0
    Part.Circle(V(115.1, 26.5, 0), V(0, 0, 1), 3.5),  # 1
    Part.Circle(V(104.1, 26.5, 0), V(0, 0, 1), 3.5),  # 2
    Part.Circle(V(93.1, 26.5, 0), V(0, 0, 1), 3.5),  # 3
    Part.Circle(V(126.1, 9.5, 0), V(0, 0, 1), 3.5),  # 4
    Part.Circle(V(115.1, 9.5, 0), V(0, 0, 1), 3.5),  # 5
    Part.Circle(V(104.1, 9.5, 0), V(0, 0, 1), 3.5),  # 6
    Part.Circle(V(93.1, 9.5, 0), V(0, 0, 1), 3.5),  # 7
    Part.Circle(V(93.1, 18, 0), V(0, 0, 1), 2.5),  # 8
    Part.Circle(V(104.1, 18, 0), V(0, 0, 1), 2.5),  # 9
    Part.Circle(V(115.1, 18, 0), V(0, 0, 1), 2.5),  # 10
    Part.Circle(V(126.1, 18, 0), V(0, 0, 1), 2.5),  # 11
    Part.Circle(V(126.1, 35, 0), V(0, 0, 1), 2.5),  # 12
    Part.Circle(V(115.1, 35, 0), V(0, 0, 1), 2.5),  # 13
    Part.Circle(V(104.1, 35, 0), V(0, 0, 1), 2.5),  # 14
    Part.Circle(V(93.1, 35, 0), V(0, 0, 1), 2.5),  # 15
], False)
sketch10.addConstraint([
    Sketcher.Constraint("Equal", 0, 1),
    Sketcher.Constraint("Equal", 1, 2),
    Sketcher.Constraint("Equal", 2, 3),
    Sketcher.Constraint("Equal", 3, 4),
    Sketcher.Constraint("Equal", 4, 5),
    Sketcher.Constraint("Equal", 5, 6),
    Sketcher.Constraint("Equal", 6, 7),
    Sketcher.Constraint("Equal", 8, 9),
    Sketcher.Constraint("Equal", 9, 10),
    Sketcher.Constraint("Equal", 10, 11),
    Sketcher.Constraint("Equal", 11, 12),
    Sketcher.Constraint("Equal", 12, 13),
    Sketcher.Constraint("Equal", 13, 14),
    Sketcher.Constraint("Equal", 14, 15),
    Sketcher.Constraint("Horizontal", 0, 3, 1, 3),
    Sketcher.Constraint("Horizontal", 1, 3, 2, 3),
    Sketcher.Constraint("Horizontal", 2, 3, 3, 3),
    Sketcher.Constraint("Horizontal", 4, 3, 5, 3),
    Sketcher.Constraint("Horizontal", 5, 3, 6, 3),
    Sketcher.Constraint("Horizontal", 6, 3, 7, 3),
    Sketcher.Constraint("Horizontal", 8, 3, 9, 3),
    Sketcher.Constraint("Horizontal", 9, 3, 10, 3),
    Sketcher.Constraint("Horizontal", 10, 3, 11, 3),
    Sketcher.Constraint("Horizontal", 12, 3, 13, 3),
    Sketcher.Constraint("Horizontal", 13, 3, 14, 3),
    Sketcher.Constraint("Horizontal", 14, 3, 15, 3),
    Sketcher.Constraint("Vertical", 0, 3, 4, 3),
    Sketcher.Constraint("Vertical", 1, 3, 5, 3),
    Sketcher.Constraint("Vertical", 2, 3, 6, 3),
    Sketcher.Constraint("Vertical", 3, 3, 7, 3),
    Sketcher.Constraint("Vertical", 7, 3, 8, 3),
    Sketcher.Constraint("Vertical", 6, 3, 9, 3),
    Sketcher.Constraint("Vertical", 5, 3, 10, 3),
    Sketcher.Constraint("Vertical", 4, 3, 11, 3),
    Sketcher.Constraint("Vertical", 11, 3, 12, 3),
    Sketcher.Constraint("Vertical", 10, 3, 13, 3),
    Sketcher.Constraint("Vertical", 9, 3, 14, 3),
    Sketcher.Constraint("Vertical", 8, 3, 15, 3),
    Sketcher.Constraint("Diameter", 0, 7.0),
    Sketcher.Constraint("Diameter", 8, 5.0),
    Sketcher.Constraint("DistanceY", -1, 1, 8, 3, 18.0),
    Sketcher.Constraint("DistanceY", -1, 1, 12, 3, 35.0),
    Sketcher.Constraint("DistanceX", 1, 3, 0, 3, 11.0),
    Sketcher.Constraint("DistanceX", 2, 3, 1, 3, 11.0),
    Sketcher.Constraint("DistanceX", 3, 3, 2, 3, 11.0),
    Sketcher.Constraint("DistanceY", 4, 3, 0, 3, 17.0),
    Sketcher.Constraint("DistanceY", -1, 1, 0, 3, 26.5),
    Sketcher.Constraint("DistanceX", -1, 1, 0, 3, 126.071429),
])
sketch10.setExpression("Constraints[38]", "Params.sketch10_diameter")
sketch10.setExpression("Constraints[39]", "Params.sketch10_diameter2")
pocket5 = body.newObject("PartDesign::Pocket", "Pocket004")
pocket5.Profile = sketch10
pocket5.setExpression("Length", "Params.pocket5_length")
pocket5.Reversed = True

# Sketch on XZ plane
sketch11 = body.newObject("Sketcher::SketchObject", "Sketch010")
sketch11.AttachmentSupport = (doc.getObject("XZ_Plane"), [""])
sketch11.MapMode = "FlatFace"
add_polygon(sketch11, [(158, 36), (158, 8), (172, 8), (172, 36)])  # lines 0-3
sketch11.addConstraint([
    Sketcher.Constraint("Vertical", 0),
    Sketcher.Constraint("Horizontal", 1),
    Sketcher.Constraint("Vertical", 2),
    Sketcher.Constraint("Horizontal", 3),
    Sketcher.Constraint("DistanceX", 1, 1, 1, 2, 14.0),
    Sketcher.Constraint("DistanceY", 0, 2, 0, 1, 28.5),
    Sketcher.Constraint("DistanceY", -1, 1, 0, 2, 8.0),
    Sketcher.Constraint("DistanceX", -1, 1, 0, 2, 158.32),
])
sketch11.setExpression("Constraints[8]", "Params.sketch11_width")
sketch11.setExpression("Constraints[9]", "Params.sketch11_height")
pocket6 = body.newObject("PartDesign::Pocket", "Pocket005")
pocket6.Profile = sketch11
pocket6.setExpression("Length", "Params.pocket6_length")
pocket6.Reversed = True

# Sketch on XZ plane
sketch12 = body.newObject("Sketcher::SketchObject", "Sketch011")
sketch12.AttachmentSupport = (doc.getObject("XZ_Plane"), [""])
sketch12.MapMode = "FlatFace"
add_polygon(sketch12, [(136, 21), (136, 7), (152, 7), (152, 21)])  # lines 0-3
sketch12.addConstraint([
    Sketcher.Constraint("Vertical", 0),
    Sketcher.Constraint("Horizontal", 1),
    Sketcher.Constraint("Vertical", 2),
    Sketcher.Constraint("Horizontal", 3),
    Sketcher.Constraint("DistanceX", 1, 1, 1, 2, 16.0),
    Sketcher.Constraint("DistanceY", 0, 2, 0, 1, 13.7),
    Sketcher.Constraint("DistanceY", -1, 1, 0, 2, 7.0),
    Sketcher.Constraint("DistanceX", -1, 1, 0, 2, 135.945714),
])
sketch12.setExpression("Constraints[8]", "Params.sketch12_width")
sketch12.setExpression("Constraints[9]", "Params.sketch12_height")
pocket7 = body.newObject("PartDesign::Pocket", "Pocket006")
pocket7.Profile = sketch12
pocket7.setExpression("Length", "Params.pocket7_length")
pocket7.Reversed = True
body2 = doc.addObject("PartDesign::Body", "Body001")

# Sketch on XZ plane
sketch13 = body2.newObject("Sketcher::SketchObject", "Sketch012")
sketch13.AttachmentSupport = (doc.getObject("XZ_Plane001"), [""])
sketch13.MapMode = "FlatFace"
sketch13.AttachmentOffset = App.Placement(V(0, 0, 4), App.Rotation())
add_polygon(sketch13, [(17, 44.5), (17, 4), (19, 4), (19, 42.5), (235, 42.5), (235, 4), (237, 4), (237, 44.5)])  # lines 0-7
sketch13.addConstraint([
    Sketcher.Constraint("Vertical", 0),
    Sketcher.Constraint("Horizontal", 1),
    Sketcher.Constraint("Vertical", 2),
    Sketcher.Constraint("Horizontal", 3),
    Sketcher.Constraint("Vertical", 4),
    Sketcher.Constraint("Horizontal", 5),
    Sketcher.Constraint("Vertical", 6),
    Sketcher.Constraint("Horizontal", 7),
    Sketcher.Constraint("Horizontal", 1, 2, 4, 2),
    Sketcher.Constraint("Equal", 1, 5),
    Sketcher.Constraint("DistanceX", 1, 1, 1, 2, 2.0),
    Sketcher.Constraint("DistanceX", 3, 1, 3, 2, 216.0),
    Sketcher.Constraint("DistanceY", 0, 2, 0, 1, 40.5),
    Sketcher.Constraint("DistanceY", 2, 1, 2, 2, 38.5),
    Sketcher.Constraint("DistanceX", -1, 1, 0, 2, 17.0),
    Sketcher.Constraint("DistanceY", -1, 1, 0, 2, 4.0),
])
sketch13.setExpression("Constraints[18]", "Params.sketch13_width")
sketch13.setExpression("Constraints[19]", "Params.sketch13_width2")
sketch13.setExpression("Constraints[20]", "Params.sketch13_height")
sketch13.setExpression("Constraints[21]", "Params.sketch13_height2")
pad6 = body2.newObject("PartDesign::Pad", "Pad005")
pad6.Profile = sketch13
pad6.setExpression("Length", "Params.pad6_length")

doc.recompute()
